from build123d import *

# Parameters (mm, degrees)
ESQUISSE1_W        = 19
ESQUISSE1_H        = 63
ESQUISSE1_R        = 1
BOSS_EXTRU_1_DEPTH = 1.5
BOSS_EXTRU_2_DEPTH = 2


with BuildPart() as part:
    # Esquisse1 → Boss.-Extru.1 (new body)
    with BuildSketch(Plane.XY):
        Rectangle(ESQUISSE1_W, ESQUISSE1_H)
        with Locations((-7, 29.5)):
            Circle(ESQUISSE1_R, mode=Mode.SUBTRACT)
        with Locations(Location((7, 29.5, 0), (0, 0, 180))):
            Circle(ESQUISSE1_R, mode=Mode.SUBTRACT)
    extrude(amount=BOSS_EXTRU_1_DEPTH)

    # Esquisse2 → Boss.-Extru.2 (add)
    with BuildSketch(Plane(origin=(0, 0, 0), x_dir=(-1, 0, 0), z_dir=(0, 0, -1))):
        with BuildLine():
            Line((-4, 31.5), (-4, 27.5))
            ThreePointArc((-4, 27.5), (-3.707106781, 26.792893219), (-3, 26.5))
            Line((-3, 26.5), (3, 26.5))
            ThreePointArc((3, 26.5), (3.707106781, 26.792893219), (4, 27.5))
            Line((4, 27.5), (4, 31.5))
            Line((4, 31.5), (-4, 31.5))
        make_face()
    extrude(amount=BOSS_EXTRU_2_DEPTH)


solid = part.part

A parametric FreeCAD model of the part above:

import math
import FreeCAD as App
import Part
import Sketcher

V = App.Vector
Q = App.Units.Quantity


def add_polygon(sketch, points):
    """Adds a closed chain of lines whose ends are joined by coincident constraints."""
    first, n = sketch.GeometryCount, len(points)
    for a, b in zip(points, points[1:] + points[:1]):
        sketch.addGeometry(Part.LineSegment(App.Vector(*a, 0), App.Vector(*b, 0)), False)
    for i in range(n):
        sketch.addConstraint(Sketcher.Constraint("Coincident", first + i, 2, first + (i + 1) % n, 1))

doc = App.newDocument("Part")
body = doc.addObject("PartDesign::Body", "Body")

sketch1 = body.newObject("Sketcher::SketchObject", "Sketch")
sketch1.AttachmentSupport = (doc.getObject("XY_Plane"), [""])
sketch1.MapMode = "FlatFace"
add_polygon(sketch1, [(-9.5, 31.5), (-9.5, -31.5), (9.5, -31.5), (9.5, 31.5)])
sketch1.addGeometry(Part.Circle(V(-7, 29.5, 0), V(0, 0, 1), 1), False)
sketch1.addGeometry(Part.Circle(V(7, 29.5, 0), V(0, 0, 1), 1), False)
sketch1.addConstraint([
    Sketcher.Constraint("Vertical", 0),
    Sketcher.Constraint("Horizontal", 1),
    Sketcher.Constraint("Vertical", 2),
    Sketcher.Constraint("Horizontal", 3),
    Sketcher.Constraint("Equal", 4, 5),
    Sketcher.Constraint("Symmetric", 0, 2, 2, 2, -1, 1),
    Sketcher.Constraint("Symmetric", 4, 3, 5, 3, -2),
    Sketcher.Constraint("Diameter", 4, Q("2 mm")),
    Sketcher.Constraint("DistanceX", 1, 1, 1, 2, Q("19 mm")),
    Sketcher.Constraint("DistanceY", 0, 2, 0, 1, Q("63 mm")),
    Sketcher.Constraint("DistanceX", 4, 3, -1, 1, Q("7 mm")),
    Sketcher.Constraint("DistanceY", 0, 2, 4, 3, Q("61 mm")),
])
pad1 = body.newObject("PartDesign::Pad", "Pad")
pad1.Profile = sketch1
pad1.Length = 1.5

sketch2 = body.newObject("Sketcher::SketchObject", "Sketch001")
sketch2.AttachmentSupport = (doc.getObject("XY_Plane"), [""])
sketch2.MapMode = "FlatFace"
sketch2.addGeometry([
    Part.LineSegment(V(4, 31.5, 0), V(4, 27.5, 0)),
    Part.ArcOfCircle(Part.Circle(V(3, 27.5, 0), V(0, 0, 1), 1), math.radians(-90), math.radians(0)),
    Part.LineSegment(V(3, 26.5, 0), V(-3, 26.5, 0)),
    Part.ArcOfCircle(Part.Circle(V(-3, 27.5, 0), V(0, 0, 1), 1), math.radians(-180), math.radians(-90)),
    Part.LineSegment(V(-4, 27.5, 0), V(-4, 31.5, 0)),
    Part.LineSegment(V(-4, 31.5, 0), V(4, 31.5, 0)),
], False)
sketch2.addConstraint([
    Sketcher.Constraint("Tangent", 0, 2, 1, 2),
    Sketcher.Constraint("Tangent", 1, 1, 2, 1),
    Sketcher.Constraint("Tangent", 2, 2, 3, 2),
    Sketcher.Constraint("Tangent", 3, 1, 4, 1),
    Sketcher.Constraint("Coincident", 4, 2, 5, 1),
    Sketcher.Constraint("Coincident", 5, 2, 0, 1),
    Sketcher.Constraint("Vertical", 0),
    Sketcher.Constraint("Horizontal", 2),
    Sketcher.Constraint("Vertical", 4),
    Sketcher.Constraint("Horizontal", 5),
    Sketcher.Constraint("Equal", 1, 3),
    Sketcher.Constraint("Radius", 1, Q("1 mm")),
    Sketcher.Constraint("DistanceX", 2, 2, 2, 1, Q("6 mm")),
    Sketcher.Constraint("DistanceY", 0, 2, 0, 1, Q("4 mm")),
    Sketcher.Constraint("DistanceX", -1, 1, 1, 3, Q("3 mm")),
    Sketcher.Constraint("DistanceY", -1, 1, 1, 3, Q("27.5 mm")),
])
pad2 = body.newObject("PartDesign::Pad", "Pad001")
pad2.Profile = sketch2
pad2.Length = 2
pad2.Reversed = True

doc.recompute()
